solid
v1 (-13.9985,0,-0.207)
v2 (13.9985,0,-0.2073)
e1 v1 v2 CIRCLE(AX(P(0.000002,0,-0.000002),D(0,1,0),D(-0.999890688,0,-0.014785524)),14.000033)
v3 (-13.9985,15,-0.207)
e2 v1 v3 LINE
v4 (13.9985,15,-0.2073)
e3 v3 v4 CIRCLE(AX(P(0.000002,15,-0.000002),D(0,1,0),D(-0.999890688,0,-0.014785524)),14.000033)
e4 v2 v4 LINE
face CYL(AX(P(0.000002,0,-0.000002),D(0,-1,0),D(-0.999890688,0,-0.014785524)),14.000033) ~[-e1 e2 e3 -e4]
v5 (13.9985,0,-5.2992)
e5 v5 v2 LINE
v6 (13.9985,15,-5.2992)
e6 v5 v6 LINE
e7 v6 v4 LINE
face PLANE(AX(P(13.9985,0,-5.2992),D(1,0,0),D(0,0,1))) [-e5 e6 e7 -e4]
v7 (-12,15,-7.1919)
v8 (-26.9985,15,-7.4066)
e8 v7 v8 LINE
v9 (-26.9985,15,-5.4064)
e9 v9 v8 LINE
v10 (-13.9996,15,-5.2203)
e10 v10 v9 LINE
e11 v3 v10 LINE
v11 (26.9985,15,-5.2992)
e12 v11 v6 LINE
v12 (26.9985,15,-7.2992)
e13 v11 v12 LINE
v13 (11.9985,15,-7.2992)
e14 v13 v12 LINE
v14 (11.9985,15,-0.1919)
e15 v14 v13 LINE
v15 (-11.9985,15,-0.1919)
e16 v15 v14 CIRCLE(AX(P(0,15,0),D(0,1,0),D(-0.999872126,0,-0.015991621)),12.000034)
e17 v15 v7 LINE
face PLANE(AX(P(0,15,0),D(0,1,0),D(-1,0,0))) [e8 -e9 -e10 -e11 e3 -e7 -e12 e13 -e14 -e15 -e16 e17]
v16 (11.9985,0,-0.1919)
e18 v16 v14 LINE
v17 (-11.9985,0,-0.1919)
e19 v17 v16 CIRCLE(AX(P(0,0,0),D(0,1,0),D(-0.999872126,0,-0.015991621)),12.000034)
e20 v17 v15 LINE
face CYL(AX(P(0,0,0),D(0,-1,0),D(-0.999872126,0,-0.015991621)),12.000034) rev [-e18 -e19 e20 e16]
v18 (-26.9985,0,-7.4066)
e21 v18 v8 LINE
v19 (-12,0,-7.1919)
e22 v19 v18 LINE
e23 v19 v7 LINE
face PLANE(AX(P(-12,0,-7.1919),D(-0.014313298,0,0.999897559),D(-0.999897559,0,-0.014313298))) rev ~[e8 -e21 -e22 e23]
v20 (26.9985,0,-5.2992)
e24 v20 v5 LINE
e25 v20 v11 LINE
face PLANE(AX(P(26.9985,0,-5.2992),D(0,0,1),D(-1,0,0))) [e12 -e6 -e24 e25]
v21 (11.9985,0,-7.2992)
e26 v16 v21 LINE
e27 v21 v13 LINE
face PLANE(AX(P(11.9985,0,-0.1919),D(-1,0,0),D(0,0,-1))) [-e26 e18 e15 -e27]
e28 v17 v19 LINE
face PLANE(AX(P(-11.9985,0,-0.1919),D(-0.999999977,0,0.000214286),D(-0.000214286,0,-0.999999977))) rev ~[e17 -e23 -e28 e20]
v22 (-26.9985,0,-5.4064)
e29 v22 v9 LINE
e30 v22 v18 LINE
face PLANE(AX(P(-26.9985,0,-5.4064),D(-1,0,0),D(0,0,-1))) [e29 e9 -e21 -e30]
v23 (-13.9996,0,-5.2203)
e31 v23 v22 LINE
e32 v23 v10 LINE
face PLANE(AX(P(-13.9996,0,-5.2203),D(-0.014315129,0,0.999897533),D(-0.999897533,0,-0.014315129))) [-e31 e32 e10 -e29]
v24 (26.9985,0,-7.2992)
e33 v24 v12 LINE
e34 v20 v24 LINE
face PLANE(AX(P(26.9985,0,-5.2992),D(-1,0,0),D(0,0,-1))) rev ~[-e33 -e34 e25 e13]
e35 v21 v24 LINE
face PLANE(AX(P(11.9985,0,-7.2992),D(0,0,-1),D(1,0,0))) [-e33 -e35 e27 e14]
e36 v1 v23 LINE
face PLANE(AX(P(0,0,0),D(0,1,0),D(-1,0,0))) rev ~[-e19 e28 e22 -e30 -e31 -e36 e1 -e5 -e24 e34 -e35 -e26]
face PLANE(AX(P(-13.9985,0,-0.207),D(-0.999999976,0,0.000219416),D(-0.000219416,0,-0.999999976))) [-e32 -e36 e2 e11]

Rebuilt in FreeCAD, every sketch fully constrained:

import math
import FreeCAD as App
import Part
import Sketcher
Q = App.Units.Quantity

doc = App.newDocument("Part")
params = doc.addObject("Spreadsheet::Sheet", "Params")
for row, (alias, value) in enumerate([
    ("sketch1_radius", "12 mm"),
    ("sketch1_width", "15 mm"),
    ("sketch1_height", "2 mm"),
    ("sketch1_length", "7 mm"),
    ("sketch1_length2", "15 mm"),
    ("pad1_length", "15 mm"),
], start=1):
    params.set(f"A{row}", alias)
    params.set(f"B{row}", "=" + value)
    params.setAlias(f"B{row}", alias)

body = doc.addObject("PartDesign::Body", "Body")

# Sketch on XZ plane
sketch1 = body.newObject("Sketcher::SketchObject", "Sketch")
sketch1.AttachmentSupport = (doc.getObject("XZ_Plane"), [""])
sketch1.MapMode = "FlatFace"
sketch1.addGeometry([
    Part.ArcOfCircle(Part.Circle(App.Vector(0, 0, 0), App.Vector(0, 0, 1), 12.000034), math.radians(-0.916291), math.radians(180.916291)),  # 0
    Part.LineSegment(App.Vector(-11.9985, -0.1919, 0), App.Vector(-12, -7.1919, 0)),  # 1
    Part.LineSegment(App.Vector(-12, -7.1919, 0), App.Vector(-26.9985, -7.4066, 0)),  # 2
    Part.LineSegment(App.Vector(-26.9985, -7.4066, 0), App.Vector(-26.9985, -5.4064, 0)),  # 3
    Part.LineSegment(App.Vector(-26.9985, -5.4064, 0), App.Vector(-13.9996, -5.2203, 0)),  # 4
    Part.LineSegment(App.Vector(-13.9996, -5.2203, 0), App.Vector(-13.9985, -0.207, 0)),  # 5
    Part.ArcOfCircle(Part.Circle(App.Vector(0, 0, 0), App.Vector(0, 0, 1), 14.00003), math.radians(-0.848416), math.radians(180.847188)),  # 6
    Part.LineSegment(App.Vector(13.9985, -0.2073, 0), App.Vector(13.9985, -5.2992, 0)),  # 7
    Part.LineSegment(App.Vector(13.9985, -5.2992, 0), App.Vector(26.9985, -5.2992, 0)),  # 8
    Part.LineSegment(App.Vector(26.9985, -5.2992, 0), App.Vector(26.9985, -7.2992, 0)),  # 9
    Part.LineSegment(App.Vector(26.9985, -7.2992, 0), App.Vector(11.9985, -7.2992, 0)),  # 10
    Part.LineSegment(App.Vector(11.9985, -7.2992, 0), App.Vector(11.9985, -0.1919, 0)),  # 11
], False)
sketch1.addConstraint([
    Sketcher.Constraint("Coincident", 0, 2, 1, 1),
    Sketcher.Constraint("Coincident", 1, 2, 2, 1),
    Sketcher.Constraint("Coincident", 2, 2, 3, 1),
    Sketcher.Constraint("Coincident", 3, 2, 4, 1),
    Sketcher.Constraint("Coincident", 4, 2, 5, 1),
    Sketcher.Constraint("Coincident", 5, 2, 6, 2),
    Sketcher.Constraint("Coincident", 6, 1, 7, 1),
    Sketcher.Constraint("Coincident", 7, 2, 8, 1),
    Sketcher.Constraint("Coincident", 8, 2, 9, 1),
    Sketcher.Constraint("Coincident", 9, 2, 10, 1),
    Sketcher.Constraint("Coincident", 10, 2, 11, 1),
    Sketcher.Constraint("Coincident", 11, 2, 0, 1),
    Sketcher.Constraint("Vertical", 3),
    Sketcher.Constraint("Vertical", 7),
    Sketcher.Constraint("Horizontal", 8),
    Sketcher.Constraint("Vertical", 9),
    Sketcher.Constraint("Horizontal", 10),
    Sketcher.Constraint("Vertical", 11),
    Sketcher.Constraint("Coincident", 0, 3, -1, 1),
    Sketcher.Constraint("Coincident", 6, 3, -1, 1),
    Sketcher.Constraint("Parallel", 2, 4),
    Sketcher.Constraint("Parallel", 1, 5),
    Sketcher.Constraint("Horizontal", 0, 2, 11, 2),
    Sketcher.Constraint("Radius", 0, 12.0),
    Sketcher.Constraint("DistanceX", 10, 2, 10, 1, 15.0),
    Sketcher.Constraint("DistanceY", 9, 2, 9, 1, 2.0),
    Sketcher.Constraint("Distance", 1, 7.0),
    Sketcher.Constraint("Distance", 2, 15.0),
    Sketcher.Constraint("Radius", 6, 14.0),
    Sketcher.Constraint("DistanceX", 2, 2, 0, 2, 15.0),
    Sketcher.Constraint("DistanceX", 5, 2, 0, 2, 2.0),
    Sketcher.Constraint("DistanceX", 10, 2, 7, 2, 2.0),
    Sketcher.Constraint("DistanceY", 3, 1, 3, 2, 2.0002),
    Sketcher.Constraint("DistanceX", 1, 2, -1, 1, 12.0),
    Sketcher.Constraint("Angle", 2, Q("-179.18 deg")),
    Sketcher.Constraint("DistanceY", 7, 2, 7, 1, 5.092),
])
sketch1.setExpression("Constraints[23]", "Params.sketch1_radius")
sketch1.setExpression("Constraints[24]", "Params.sketch1_width")
sketch1.setExpression("Constraints[25]", "Params.sketch1_height")
sketch1.setExpression("Constraints[26]", "Params.sketch1_length")
sketch1.setExpression("Constraints[27]", "Params.sketch1_length2")
pad1 = body.newObject("PartDesign::Pad", "Pad")
pad1.Profile = sketch1
pad1.setExpression("Length", "Params.pad1_length")
pad1.Reversed = True

doc.recompute()
